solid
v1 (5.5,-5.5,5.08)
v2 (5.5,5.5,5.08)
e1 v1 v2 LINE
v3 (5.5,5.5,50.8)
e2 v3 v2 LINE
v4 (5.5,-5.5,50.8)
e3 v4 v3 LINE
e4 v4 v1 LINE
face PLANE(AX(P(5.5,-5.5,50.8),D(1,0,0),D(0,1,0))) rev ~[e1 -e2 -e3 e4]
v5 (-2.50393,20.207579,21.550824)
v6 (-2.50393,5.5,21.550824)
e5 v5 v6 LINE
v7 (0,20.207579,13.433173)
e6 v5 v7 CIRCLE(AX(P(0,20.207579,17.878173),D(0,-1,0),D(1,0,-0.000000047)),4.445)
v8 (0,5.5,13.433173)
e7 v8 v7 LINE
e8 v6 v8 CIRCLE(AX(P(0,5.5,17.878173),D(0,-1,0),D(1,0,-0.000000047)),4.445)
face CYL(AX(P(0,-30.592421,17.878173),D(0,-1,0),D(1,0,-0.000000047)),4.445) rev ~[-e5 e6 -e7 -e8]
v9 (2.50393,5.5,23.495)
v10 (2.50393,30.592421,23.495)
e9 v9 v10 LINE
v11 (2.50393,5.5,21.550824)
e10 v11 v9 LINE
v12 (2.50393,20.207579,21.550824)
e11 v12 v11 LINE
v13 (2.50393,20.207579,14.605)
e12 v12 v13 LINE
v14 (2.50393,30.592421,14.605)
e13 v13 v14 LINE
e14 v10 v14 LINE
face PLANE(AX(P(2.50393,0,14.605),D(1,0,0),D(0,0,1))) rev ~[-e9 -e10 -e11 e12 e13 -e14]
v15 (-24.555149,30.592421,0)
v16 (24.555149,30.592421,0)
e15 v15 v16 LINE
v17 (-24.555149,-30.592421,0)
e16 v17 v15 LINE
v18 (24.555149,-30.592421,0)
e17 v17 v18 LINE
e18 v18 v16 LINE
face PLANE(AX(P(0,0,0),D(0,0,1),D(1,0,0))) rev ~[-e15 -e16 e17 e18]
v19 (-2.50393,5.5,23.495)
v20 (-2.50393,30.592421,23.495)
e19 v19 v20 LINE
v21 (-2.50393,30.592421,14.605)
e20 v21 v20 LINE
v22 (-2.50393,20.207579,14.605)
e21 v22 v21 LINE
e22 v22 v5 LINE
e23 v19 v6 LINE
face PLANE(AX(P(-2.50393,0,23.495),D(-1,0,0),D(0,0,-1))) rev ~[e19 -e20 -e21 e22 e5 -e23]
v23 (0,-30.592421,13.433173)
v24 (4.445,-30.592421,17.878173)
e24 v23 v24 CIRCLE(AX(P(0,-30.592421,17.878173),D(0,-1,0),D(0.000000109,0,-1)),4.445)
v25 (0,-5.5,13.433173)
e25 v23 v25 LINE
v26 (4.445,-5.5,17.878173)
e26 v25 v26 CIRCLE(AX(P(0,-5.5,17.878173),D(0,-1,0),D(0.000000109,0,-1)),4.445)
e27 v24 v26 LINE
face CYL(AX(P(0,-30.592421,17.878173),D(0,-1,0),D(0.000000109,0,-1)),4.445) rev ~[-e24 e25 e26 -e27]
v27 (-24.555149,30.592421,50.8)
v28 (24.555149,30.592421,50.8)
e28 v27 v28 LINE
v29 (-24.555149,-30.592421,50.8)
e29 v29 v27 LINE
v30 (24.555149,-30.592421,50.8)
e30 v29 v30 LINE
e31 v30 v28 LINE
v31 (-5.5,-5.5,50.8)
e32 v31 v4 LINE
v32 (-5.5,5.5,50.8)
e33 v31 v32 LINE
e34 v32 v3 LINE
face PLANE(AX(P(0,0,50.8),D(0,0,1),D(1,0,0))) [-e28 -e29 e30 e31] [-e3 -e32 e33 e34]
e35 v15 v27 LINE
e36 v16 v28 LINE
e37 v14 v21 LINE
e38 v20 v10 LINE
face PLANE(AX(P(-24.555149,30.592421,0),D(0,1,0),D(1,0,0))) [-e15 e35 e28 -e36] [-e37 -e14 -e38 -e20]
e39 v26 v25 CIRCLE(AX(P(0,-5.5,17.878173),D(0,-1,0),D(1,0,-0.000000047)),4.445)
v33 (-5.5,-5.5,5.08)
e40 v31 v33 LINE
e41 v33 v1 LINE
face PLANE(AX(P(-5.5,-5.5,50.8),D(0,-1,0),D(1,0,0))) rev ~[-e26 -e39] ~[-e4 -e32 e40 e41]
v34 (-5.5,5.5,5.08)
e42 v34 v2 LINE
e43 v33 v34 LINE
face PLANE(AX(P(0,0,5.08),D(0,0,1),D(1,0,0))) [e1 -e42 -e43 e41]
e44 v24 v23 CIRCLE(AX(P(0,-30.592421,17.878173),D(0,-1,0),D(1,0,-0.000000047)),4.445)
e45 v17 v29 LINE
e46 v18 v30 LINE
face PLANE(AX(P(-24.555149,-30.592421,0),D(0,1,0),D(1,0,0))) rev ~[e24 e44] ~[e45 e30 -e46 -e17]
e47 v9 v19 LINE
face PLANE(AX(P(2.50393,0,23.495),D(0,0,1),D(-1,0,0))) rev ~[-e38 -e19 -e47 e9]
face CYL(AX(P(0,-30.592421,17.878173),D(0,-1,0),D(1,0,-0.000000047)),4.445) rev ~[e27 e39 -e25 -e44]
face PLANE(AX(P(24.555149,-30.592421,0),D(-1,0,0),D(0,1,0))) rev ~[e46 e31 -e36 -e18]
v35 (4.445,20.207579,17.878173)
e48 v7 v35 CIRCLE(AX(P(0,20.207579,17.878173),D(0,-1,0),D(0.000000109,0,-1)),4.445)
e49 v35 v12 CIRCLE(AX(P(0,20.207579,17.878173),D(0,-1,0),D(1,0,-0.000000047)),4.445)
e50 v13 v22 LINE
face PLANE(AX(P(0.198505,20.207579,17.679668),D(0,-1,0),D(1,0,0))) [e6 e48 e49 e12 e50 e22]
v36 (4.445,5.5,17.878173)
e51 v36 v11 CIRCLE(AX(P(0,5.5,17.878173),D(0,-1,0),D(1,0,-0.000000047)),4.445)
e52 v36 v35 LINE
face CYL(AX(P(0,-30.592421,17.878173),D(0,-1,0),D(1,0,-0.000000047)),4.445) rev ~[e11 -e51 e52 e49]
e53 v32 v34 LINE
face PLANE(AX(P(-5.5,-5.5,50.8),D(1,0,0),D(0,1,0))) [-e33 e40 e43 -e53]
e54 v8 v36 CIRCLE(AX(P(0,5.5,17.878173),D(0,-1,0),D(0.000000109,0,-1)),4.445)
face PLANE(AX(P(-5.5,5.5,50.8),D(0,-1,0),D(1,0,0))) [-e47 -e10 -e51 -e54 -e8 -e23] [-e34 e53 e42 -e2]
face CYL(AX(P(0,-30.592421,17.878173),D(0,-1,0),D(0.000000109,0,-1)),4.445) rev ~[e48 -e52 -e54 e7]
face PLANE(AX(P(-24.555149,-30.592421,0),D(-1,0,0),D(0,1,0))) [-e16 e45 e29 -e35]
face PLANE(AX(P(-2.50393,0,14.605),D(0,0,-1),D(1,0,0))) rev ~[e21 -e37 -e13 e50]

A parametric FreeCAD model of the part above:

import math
import FreeCAD as App
import Part
import Sketcher

V = App.Vector
Q = App.Units.Quantity

doc = App.newDocument("Part")
params = doc.addObject("Spreadsheet::Sheet", "Params")
for row, (alias, value) in enumerate([
    ("pad1_length", "2 in"),
    ("pocket1_length", "1.8 in"),
    ("sketch3_height", "0.35 in"),
    ("pocket2_length", "2 in"),
    ("sketch4_radius", "0.175 in"),
    ("pocket3_length", "2 in"),
], start=1):
    params.set(f"A{row}", alias)
    params.set(f"B{row}", "=" + value)
    params.setAlias(f"B{row}", alias)

body = doc.addObject("PartDesign::Body", "Body")

sketch1 = body.newObject("Sketcher::SketchObject", "Sketch")
sketch1.AttachmentSupport = (doc.getObject("XY_Plane"), [""])
sketch1.MapMode = "FlatFace"
sketch1.addGeometry([
    Part.LineSegment(V(-25, 31, 0), V(-25, -31, 0)),
    Part.LineSegment(V(-25, -31, 0), V(25, -31, 0)),
    Part.LineSegment(V(25, -31, 0), V(25, 31, 0)),
    Part.LineSegment(V(25, 31, 0), V(-25, 31, 0)),
], False)
sketch1.addConstraint([
    Sketcher.Constraint("Coincident", 0, 2, 1, 1),
    Sketcher.Constraint("Coincident", 1, 2, 2, 1),
    Sketcher.Constraint("Coincident", 2, 2, 3, 1),
    Sketcher.Constraint("Coincident", 3, 2, 0, 1),
    Sketcher.Constraint("Vertical", 0),
    Sketcher.Constraint("Horizontal", 1),
    Sketcher.Constraint("Vertical", 2),
    Sketcher.Constraint("Horizontal", 3),
    Sketcher.Constraint("Symmetric", 0, 2, 2, 2, -1, 1),
    Sketcher.Constraint("DistanceX", 1, 1, 1, 2, Q("49.110298 mm")),
    Sketcher.Constraint("DistanceY", 0, 2, 0, 1, Q("61.184842 mm")),
])
pad1 = body.newObject("PartDesign::Pad", "Pad")
pad1.Profile = sketch1
pad1.setExpression("Length", "Params.pad1_length")

sketch2 = body.newObject("Sketcher::SketchObject", "Sketch001")
sketch2.AttachmentSupport = (doc.getObject("XY_Plane"), [""])
sketch2.MapMode = "FlatFace"
sketch2.AttachmentOffset = App.Placement(V(0, 0, 2 * 25.4), App.Rotation())
sketch2.addGeometry([
    Part.LineSegment(V(-6, 6, 0), V(-6, -6, 0)),
    Part.LineSegment(V(-6, -6, 0), V(6, -6, 0)),
    Part.LineSegment(V(6, -6, 0), V(6, 6, 0)),
    Part.LineSegment(V(6, 6, 0), V(-6, 6, 0)),
], False)
sketch2.addConstraint([
    Sketcher.Constraint("Coincident", 0, 2, 1, 1),
    Sketcher.Constraint("Coincident", 1, 2, 2, 1),
    Sketcher.Constraint("Coincident", 2, 2, 3, 1),
    Sketcher.Constraint("Coincident", 3, 2, 0, 1),
    Sketcher.Constraint("Vertical", 0),
    Sketcher.Constraint("Horizontal", 1),
    Sketcher.Constraint("Vertical", 2),
    Sketcher.Constraint("Horizontal", 3),
    Sketcher.Constraint("Symmetric", 0, 2, 2, 2, -1, 1),
    Sketcher.Constraint("Equal", 3, 0),
    Sketcher.Constraint("DistanceX", 1, 1, 1, 2, Q("11 mm")),
])
pocket1 = body.newObject("PartDesign::Pocket", "Pocket")
pocket1.Profile = sketch2
pocket1.setExpression("Length", "Params.pocket1_length")

sketch3 = body.newObject("Sketcher::SketchObject", "Sketch002")
sketch3.AttachmentSupport = (doc.getObject("XZ_Plane"), [""])
sketch3.MapMode = "FlatFace"
sketch3.addGeometry([
    Part.LineSegment(V(-3, 23, 0), V(-3, 15, 0)),
    Part.LineSegment(V(-3, 15, 0), V(3, 15, 0)),
    Part.LineSegment(V(3, 15, 0), V(3, 23, 0)),
    Part.LineSegment(V(3, 23, 0), V(-3, 23, 0)),
], False)
sketch3.addConstraint([
    Sketcher.Constraint("Coincident", 0, 2, 1, 1),
    Sketcher.Constraint("Coincident", 1, 2, 2, 1),
    Sketcher.Constraint("Coincident", 2, 2, 3, 1),
    Sketcher.Constraint("Coincident", 3, 2, 0, 1),
    Sketcher.Constraint("Vertical", 0),
    Sketcher.Constraint("Horizontal", 1),
    Sketcher.Constraint("Vertical", 2),
    Sketcher.Constraint("Horizontal", 3),
    Sketcher.Constraint("DistanceY", 0, 2, 0, 1, Q("0.35 in")),
    Sketcher.Constraint("DistanceY", -1, 1, 0, 2, Q("0.575 in")),
    Sketcher.Constraint("DistanceX", 1, 1, 1, 2, Q("5.00786 mm")),
    Sketcher.Constraint("DistanceX", 0, 2, -1, 1, Q("2.50393 mm")),
])
sketch3.setExpression("Constraints[8]", "Params.sketch3_height")
pocket2 = body.newObject("PartDesign::Pocket", "Pocket001")
pocket2.Profile = sketch3
pocket2.setExpression("Length", "Params.pocket2_length")

sketch4 = body.newObject("Sketcher::SketchObject", "Sketch003")
sketch4.AttachmentSupport = (doc.getObject("XZ_Plane"), [""])
sketch4.MapMode = "FlatFace"
sketch4.AttachmentOffset = App.Placement(V(0, 0, 30.592421), App.Rotation())
sketch4.addGeometry([
    Part.ArcOfCircle(Part.Circle(V(0, 17.9, 0), V(0, 0, 1), 4.4), math.radians(0), math.radians(270)),
    Part.ArcOfCircle(Part.Circle(V(0, 17.9, 0), V(0, 0, 1), 4.4), math.radians(-90), math.radians(0)),
], False)
sketch4.addConstraint([
    Sketcher.Constraint("Tangent", 0, 1, 1, 2),
    Sketcher.Constraint("Coincident", 1, 1, 0, 2),
    Sketcher.Constraint("PointOnObject", 0, 3, -2),
    Sketcher.Constraint("PointOnObject", 1, 1, -2),
    Sketcher.Constraint("Horizontal", 1, 3, 0, 1),
    Sketcher.Constraint("Radius", 0, Q("0.175 in")),
    Sketcher.Constraint("DistanceY", -1, 1, 0, 3, Q("17.878173 mm")),
])
sketch4.setExpression("Constraints[5]", "Params.sketch4_radius")
pocket3 = body.newObject("PartDesign::Pocket", "Pocket002")
pocket3.Profile = sketch4
pocket3.setExpression("Length", "Params.pocket3_length")

doc.recompute()
